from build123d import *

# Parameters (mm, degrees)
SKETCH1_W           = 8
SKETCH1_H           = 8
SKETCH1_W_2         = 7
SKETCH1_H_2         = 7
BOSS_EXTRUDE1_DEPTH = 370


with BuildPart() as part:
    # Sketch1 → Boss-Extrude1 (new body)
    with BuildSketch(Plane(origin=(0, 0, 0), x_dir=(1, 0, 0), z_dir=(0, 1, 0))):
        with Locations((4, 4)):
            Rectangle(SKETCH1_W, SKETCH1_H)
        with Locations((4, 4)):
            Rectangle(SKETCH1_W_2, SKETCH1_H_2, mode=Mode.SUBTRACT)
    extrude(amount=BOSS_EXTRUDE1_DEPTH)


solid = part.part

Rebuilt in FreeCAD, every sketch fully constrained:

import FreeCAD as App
import Part
import Sketcher
Q = App.Units.Quantity

doc = App.newDocument("Part")
body = doc.addObject("PartDesign::Body", "Body")

sketch1 = body.newObject("Sketcher::SketchObject", "Sketch")
sketch1.AttachmentSupport = (doc.getObject("XZ_Plane"), [""])
sketch1.MapMode = "FlatFace"
sketch1.addGeometry([
    Part.LineSegment(App.Vector(0, -8, 0), App.Vector(0, 0, 0)),
    Part.LineSegment(App.Vector(0, 0, 0), App.Vector(8, 0, 0)),
    Part.LineSegment(App.Vector(8, 0, 0), App.Vector(8, -8, 0)),
    Part.LineSegment(App.Vector(8, -8, 0), App.Vector(0, -8, 0)),
    Part.LineSegment(App.Vector(8, 0, 0), App.Vector(0, 0, 0)),
    Part.LineSegment(App.Vector(0, 0, 0), App.Vector(0, -8, 0)),
    Part.LineSegment(App.Vector(0, -8, 0), App.Vector(8, -8, 0)),
    Part.LineSegment(App.Vector(8, -8, 0), App.Vector(8, 0, 0)),
], False)
sketch1.addConstraint([
    Sketcher.Constraint("Coincident", 0, 2, 1, 1),
    Sketcher.Constraint("Coincident", 1, 2, 2, 1),
    Sketcher.Constraint("Coincident", 2, 2, 3, 1),
    Sketcher.Constraint("Coincident", 3, 2, 0, 1),
    Sketcher.Constraint("Coincident", 4, 2, 5, 1),
    Sketcher.Constraint("Coincident", 5, 2, 6, 1),
    Sketcher.Constraint("Coincident", 6, 2, 7, 1),
    Sketcher.Constraint("Coincident", 7, 2, 4, 1),
    Sketcher.Constraint("Vertical", 0),
    Sketcher.Constraint("Horizontal", 1),
    Sketcher.Constraint("Vertical", 2),
    Sketcher.Constraint("Horizontal", 3),
    Sketcher.Constraint("Horizontal", 4),
    Sketcher.Constraint("Vertical", 5),
    Sketcher.Constraint("Horizontal", 6),
    Sketcher.Constraint("Vertical", 7),
    Sketcher.Constraint("Coincident", 0, 2, -1, 1),
    Sketcher.Constraint("Equal", 3, 0),
    Sketcher.Constraint("Equal", 6, 5),
    Sketcher.Constraint("DistanceX", 1, 1, 1, 2, Q("8 mm")),
    Sketcher.Constraint("DistanceX", 4, 2, 4, 1, Q("7 mm")),
    Sketcher.Constraint("DistanceX", -1, 1, 4, 2, Q("0.5 mm")),
    Sketcher.Constraint("DistanceY", 4, 2, -1, 1, Q("0.5 mm")),
])
pad1 = body.newObject("PartDesign::Pad", "Pad")
pad1.Profile = sketch1
pad1.Length = 370
pad1.Reversed = True

doc.recompute()
